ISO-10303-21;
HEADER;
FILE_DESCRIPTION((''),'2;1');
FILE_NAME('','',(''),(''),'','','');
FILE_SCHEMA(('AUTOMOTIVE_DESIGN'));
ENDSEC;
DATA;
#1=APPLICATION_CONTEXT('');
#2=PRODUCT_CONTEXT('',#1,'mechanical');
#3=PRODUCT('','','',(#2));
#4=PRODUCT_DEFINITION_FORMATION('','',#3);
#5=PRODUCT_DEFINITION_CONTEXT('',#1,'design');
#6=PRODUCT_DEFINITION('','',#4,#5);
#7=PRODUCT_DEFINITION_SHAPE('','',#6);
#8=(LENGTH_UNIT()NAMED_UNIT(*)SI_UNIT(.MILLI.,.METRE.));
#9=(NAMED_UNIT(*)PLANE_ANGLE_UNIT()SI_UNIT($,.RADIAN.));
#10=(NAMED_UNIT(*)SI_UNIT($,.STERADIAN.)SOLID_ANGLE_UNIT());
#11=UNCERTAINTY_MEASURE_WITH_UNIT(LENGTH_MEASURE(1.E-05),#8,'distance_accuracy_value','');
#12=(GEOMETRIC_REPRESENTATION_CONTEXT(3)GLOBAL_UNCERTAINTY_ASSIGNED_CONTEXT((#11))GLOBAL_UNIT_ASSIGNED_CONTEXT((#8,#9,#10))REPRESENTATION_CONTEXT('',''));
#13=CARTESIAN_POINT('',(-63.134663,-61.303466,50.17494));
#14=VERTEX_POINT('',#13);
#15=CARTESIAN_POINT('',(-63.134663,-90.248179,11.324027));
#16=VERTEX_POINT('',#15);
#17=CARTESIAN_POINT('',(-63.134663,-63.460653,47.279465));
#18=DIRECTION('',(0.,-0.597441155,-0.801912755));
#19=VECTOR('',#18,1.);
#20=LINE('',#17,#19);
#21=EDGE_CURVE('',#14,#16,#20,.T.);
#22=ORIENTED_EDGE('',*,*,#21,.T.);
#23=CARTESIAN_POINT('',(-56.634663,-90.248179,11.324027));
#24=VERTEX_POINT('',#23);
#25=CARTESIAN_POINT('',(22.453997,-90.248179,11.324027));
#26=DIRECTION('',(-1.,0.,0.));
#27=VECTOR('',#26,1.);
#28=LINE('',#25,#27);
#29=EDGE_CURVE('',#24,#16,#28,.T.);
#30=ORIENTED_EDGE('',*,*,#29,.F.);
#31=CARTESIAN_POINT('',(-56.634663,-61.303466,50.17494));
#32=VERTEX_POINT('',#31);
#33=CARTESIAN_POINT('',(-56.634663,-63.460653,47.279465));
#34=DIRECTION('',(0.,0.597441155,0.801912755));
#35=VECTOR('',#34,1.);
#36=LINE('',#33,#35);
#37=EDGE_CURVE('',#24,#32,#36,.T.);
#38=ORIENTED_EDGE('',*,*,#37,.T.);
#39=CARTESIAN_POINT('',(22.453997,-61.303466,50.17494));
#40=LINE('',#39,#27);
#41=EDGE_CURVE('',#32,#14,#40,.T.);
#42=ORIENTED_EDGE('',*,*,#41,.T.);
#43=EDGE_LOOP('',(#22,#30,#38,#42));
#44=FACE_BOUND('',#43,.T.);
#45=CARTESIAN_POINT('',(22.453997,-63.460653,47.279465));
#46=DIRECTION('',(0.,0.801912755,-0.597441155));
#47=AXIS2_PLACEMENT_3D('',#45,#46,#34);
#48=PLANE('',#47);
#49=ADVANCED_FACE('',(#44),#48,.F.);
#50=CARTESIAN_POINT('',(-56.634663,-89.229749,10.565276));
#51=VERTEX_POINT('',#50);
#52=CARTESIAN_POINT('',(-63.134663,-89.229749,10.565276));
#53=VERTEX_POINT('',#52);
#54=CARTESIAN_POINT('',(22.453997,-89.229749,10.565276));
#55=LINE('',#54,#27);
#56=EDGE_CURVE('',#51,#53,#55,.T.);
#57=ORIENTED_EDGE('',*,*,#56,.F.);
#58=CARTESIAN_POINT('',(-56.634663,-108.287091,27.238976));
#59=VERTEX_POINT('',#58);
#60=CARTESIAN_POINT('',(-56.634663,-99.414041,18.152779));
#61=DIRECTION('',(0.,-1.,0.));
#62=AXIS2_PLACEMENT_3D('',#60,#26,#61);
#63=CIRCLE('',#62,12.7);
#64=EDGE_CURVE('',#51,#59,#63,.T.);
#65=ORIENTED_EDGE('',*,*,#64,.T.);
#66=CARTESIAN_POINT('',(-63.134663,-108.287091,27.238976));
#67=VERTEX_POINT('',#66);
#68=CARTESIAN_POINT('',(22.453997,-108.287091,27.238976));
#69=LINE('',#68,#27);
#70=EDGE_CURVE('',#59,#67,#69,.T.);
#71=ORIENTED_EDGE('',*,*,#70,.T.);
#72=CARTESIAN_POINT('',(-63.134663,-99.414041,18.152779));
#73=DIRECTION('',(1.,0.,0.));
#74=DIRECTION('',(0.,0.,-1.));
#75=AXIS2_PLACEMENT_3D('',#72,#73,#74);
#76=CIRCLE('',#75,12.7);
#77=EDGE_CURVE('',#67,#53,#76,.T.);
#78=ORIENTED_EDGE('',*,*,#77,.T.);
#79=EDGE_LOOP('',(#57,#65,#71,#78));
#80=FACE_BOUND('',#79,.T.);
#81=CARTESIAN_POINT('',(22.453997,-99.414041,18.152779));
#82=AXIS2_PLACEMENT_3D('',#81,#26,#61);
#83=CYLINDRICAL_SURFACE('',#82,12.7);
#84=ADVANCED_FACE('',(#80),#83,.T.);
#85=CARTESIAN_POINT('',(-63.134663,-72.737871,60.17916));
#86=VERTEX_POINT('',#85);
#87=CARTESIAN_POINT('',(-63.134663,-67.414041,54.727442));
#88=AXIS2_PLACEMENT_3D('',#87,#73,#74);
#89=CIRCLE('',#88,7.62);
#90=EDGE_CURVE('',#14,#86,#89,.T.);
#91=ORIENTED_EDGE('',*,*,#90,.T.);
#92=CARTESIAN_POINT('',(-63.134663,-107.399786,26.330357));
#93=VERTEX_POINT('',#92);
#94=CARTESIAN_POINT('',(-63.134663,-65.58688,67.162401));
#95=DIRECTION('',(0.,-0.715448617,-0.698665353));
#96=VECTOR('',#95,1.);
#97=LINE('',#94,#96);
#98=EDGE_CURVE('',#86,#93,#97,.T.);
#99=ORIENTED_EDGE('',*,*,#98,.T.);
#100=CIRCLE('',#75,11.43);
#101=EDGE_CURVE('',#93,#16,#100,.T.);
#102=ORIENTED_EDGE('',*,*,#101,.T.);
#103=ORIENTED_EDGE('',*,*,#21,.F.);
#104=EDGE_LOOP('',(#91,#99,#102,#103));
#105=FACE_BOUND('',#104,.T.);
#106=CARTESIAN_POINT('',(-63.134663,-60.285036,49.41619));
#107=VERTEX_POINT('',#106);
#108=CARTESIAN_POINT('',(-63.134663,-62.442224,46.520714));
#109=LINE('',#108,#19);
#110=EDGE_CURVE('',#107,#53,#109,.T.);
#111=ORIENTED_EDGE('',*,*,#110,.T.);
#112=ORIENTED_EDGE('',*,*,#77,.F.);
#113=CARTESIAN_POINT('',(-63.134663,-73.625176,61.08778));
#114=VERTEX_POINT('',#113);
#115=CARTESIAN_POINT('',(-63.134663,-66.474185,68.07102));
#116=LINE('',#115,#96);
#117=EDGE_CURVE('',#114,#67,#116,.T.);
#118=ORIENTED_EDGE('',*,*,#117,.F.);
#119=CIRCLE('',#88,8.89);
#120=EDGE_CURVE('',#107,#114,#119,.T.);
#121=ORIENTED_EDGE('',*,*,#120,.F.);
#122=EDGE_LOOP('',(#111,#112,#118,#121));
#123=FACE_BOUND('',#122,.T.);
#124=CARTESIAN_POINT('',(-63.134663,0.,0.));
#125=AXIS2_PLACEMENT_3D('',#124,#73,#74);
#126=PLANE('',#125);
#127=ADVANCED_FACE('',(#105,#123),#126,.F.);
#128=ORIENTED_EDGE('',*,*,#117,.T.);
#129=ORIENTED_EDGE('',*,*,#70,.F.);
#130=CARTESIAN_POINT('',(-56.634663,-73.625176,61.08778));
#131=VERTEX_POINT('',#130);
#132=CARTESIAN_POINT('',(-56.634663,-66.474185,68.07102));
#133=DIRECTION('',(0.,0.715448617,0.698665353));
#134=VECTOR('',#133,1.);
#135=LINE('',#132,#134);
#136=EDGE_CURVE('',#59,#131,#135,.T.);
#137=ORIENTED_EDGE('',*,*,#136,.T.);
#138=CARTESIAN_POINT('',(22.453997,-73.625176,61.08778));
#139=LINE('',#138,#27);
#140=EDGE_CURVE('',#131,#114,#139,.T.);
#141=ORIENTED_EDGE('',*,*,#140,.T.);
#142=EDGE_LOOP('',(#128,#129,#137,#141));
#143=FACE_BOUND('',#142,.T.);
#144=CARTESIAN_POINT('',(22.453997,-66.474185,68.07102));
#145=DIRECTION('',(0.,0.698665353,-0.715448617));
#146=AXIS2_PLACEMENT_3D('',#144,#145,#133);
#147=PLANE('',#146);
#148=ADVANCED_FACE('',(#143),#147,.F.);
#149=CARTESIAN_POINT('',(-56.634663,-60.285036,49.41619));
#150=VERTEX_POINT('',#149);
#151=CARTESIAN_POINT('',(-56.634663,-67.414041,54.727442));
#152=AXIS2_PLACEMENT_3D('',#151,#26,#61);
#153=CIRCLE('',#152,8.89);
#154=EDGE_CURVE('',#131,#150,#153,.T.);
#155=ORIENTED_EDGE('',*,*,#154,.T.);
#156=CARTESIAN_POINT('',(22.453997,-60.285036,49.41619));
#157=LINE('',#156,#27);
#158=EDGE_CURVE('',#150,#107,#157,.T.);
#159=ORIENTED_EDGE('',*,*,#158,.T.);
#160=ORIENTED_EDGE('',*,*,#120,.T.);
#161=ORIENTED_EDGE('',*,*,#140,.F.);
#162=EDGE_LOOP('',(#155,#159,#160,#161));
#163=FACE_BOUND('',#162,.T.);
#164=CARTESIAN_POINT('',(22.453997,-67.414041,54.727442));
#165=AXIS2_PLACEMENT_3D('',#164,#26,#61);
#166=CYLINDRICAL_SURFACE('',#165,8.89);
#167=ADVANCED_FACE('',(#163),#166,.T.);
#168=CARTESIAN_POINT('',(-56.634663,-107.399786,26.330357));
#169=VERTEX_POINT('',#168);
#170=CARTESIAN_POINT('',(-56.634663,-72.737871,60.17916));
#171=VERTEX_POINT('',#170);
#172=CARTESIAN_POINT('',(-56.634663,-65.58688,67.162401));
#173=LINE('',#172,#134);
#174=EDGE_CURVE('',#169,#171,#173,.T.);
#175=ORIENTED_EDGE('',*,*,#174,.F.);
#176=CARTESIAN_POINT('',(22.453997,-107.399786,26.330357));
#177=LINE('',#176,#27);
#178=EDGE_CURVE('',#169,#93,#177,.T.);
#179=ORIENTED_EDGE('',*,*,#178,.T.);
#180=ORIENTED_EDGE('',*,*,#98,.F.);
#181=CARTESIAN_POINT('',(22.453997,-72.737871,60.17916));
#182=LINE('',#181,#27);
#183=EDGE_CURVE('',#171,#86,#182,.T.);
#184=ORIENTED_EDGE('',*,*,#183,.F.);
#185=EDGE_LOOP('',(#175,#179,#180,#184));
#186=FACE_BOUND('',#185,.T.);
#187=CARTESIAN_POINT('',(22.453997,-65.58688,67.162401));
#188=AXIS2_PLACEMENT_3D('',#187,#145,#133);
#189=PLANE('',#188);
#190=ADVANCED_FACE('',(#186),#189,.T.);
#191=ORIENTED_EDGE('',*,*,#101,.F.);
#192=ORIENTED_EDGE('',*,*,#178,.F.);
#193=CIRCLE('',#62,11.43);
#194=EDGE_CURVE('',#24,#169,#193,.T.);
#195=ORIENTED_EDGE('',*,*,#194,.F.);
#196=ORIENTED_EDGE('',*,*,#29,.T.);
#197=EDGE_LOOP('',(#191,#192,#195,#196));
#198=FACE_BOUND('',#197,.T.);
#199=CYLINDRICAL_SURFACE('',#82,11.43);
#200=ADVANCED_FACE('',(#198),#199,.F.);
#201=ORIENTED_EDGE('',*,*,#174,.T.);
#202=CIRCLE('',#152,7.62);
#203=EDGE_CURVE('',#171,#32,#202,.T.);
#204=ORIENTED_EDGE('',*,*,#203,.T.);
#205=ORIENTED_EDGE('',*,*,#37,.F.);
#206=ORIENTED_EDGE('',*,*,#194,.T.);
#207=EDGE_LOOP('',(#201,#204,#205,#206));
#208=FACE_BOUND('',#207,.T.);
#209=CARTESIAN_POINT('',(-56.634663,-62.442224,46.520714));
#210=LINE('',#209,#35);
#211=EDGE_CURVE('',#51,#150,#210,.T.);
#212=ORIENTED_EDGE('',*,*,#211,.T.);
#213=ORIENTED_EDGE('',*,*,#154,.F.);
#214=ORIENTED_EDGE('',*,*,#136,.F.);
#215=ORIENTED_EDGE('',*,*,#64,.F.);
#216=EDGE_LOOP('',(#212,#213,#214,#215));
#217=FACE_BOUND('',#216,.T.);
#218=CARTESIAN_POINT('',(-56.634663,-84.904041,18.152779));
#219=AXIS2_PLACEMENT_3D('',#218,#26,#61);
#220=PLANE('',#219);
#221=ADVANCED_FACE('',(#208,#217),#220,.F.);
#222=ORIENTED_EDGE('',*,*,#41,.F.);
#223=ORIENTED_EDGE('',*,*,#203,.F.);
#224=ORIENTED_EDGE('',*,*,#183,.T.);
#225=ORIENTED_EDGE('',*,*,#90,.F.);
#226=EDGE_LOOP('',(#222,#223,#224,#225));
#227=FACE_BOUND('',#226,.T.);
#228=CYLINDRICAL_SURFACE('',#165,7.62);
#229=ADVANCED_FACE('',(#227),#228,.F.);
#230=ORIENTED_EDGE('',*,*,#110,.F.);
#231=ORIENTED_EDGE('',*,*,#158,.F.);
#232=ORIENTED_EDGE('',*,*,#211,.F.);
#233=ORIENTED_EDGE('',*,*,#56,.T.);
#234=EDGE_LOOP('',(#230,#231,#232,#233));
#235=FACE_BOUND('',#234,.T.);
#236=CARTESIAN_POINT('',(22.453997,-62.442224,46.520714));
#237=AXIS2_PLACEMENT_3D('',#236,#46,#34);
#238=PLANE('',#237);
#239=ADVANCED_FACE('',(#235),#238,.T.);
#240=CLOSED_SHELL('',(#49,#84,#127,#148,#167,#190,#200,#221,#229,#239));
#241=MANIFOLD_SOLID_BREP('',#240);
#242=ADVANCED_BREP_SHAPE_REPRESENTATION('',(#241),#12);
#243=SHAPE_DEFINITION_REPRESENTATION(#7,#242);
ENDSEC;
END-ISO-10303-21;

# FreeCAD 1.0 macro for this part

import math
import FreeCAD as App
import Part
import Sketcher

V = App.Vector
Q = App.Units.Quantity

doc = App.newDocument("Part")
body = doc.addObject("PartDesign::Body", "Body")

# Sketch on YZ plane
sketch1 = doc.addObject("Sketcher::SketchObject", "Sketch")
body.addObject(sketch1)
sketch1.AttachmentSupport = (doc.YZ_Plane, [""])
sketch1.MapMode = "FlatFace"
sketch1.AttachmentOffset = App.Placement(V(0, 0, -63.134663), App.Rotation())
sketch1.addGeometry([
    Part.LineSegment(V(-89.229749, 10.565276, 0), V(-60.285036, 49.41619, 0)),  # 0
    Part.ArcOfCircle(Part.Circle(V(-67.414041, 54.727442, 0), V(0, 0, 1), 8.89), math.radians(-36.686853), math.radians(134.320023)),  # 1
    Part.LineSegment(V(-73.625176, 61.08778, 0), V(-108.287091, 27.238976, 0)),  # 2
    Part.ArcOfCircle(Part.Circle(V(-99.414041, 18.152779, 0), V(0, 0, 1), 12.7), math.radians(134.320023), math.radians(323.313147)),  # 3
    Part.ArcOfCircle(Part.Circle(V(-99.414041, 18.152779, 0), V(0, 0, 1), 11.43), math.radians(134.320023), math.radians(323.313147)),  # 4
    Part.LineSegment(V(-107.399786, 26.330357, 0), V(-72.737871, 60.17916, 0)),  # 5
    Part.ArcOfCircle(Part.Circle(V(-67.414041, 54.727442, 0), V(0, 0, 1), 7.62), math.radians(-36.686853), math.radians(134.320023)),  # 6
    Part.LineSegment(V(-61.303466, 50.17494, 0), V(-64.039179, 46.502941, 0)),  # 7
    Part.LineSegment(V(-64.039179, 46.502941, 0), V(-90.248179, 11.324027, 0)),  # 8
], False)
sketch1.addConstraint([
    Sketcher.Constraint("Tangent", 0, 2, 1, 1),
    Sketcher.Constraint("Tangent", 1, 2, 2, 1),
    Sketcher.Constraint("Tangent", 2, 2, 3, 1),
    Sketcher.Constraint("Tangent", 3, 2, 0, 1),
    Sketcher.Constraint("Tangent", 4, 1, 5, 1),
    Sketcher.Constraint("Tangent", 5, 2, 6, 2),
    Sketcher.Constraint("Tangent", 6, 1, 7, 1),
    Sketcher.Constraint("Coincident", 7, 2, 8, 1),
    Sketcher.Constraint("Tangent", 8, 2, 4, 2),
    Sketcher.Constraint("Coincident", 4, 3, 3, 3),
    Sketcher.Constraint("Coincident", 6, 3, 1, 3),
    Sketcher.Constraint("Parallel", 2, 5),
    Sketcher.Constraint("Parallel", 0, 7),
    Sketcher.Constraint("Radius", 3, Q("0.5 in")),
    Sketcher.Constraint("Radius", 6, Q("0.3 in")),
    Sketcher.Constraint("Radius", 1, Q("0.35 in")),
    Sketcher.Constraint("DistanceX", 3, 3, 1, 3, 32.000001),
    Sketcher.Constraint("DistanceY", 3, 3, 1, 2, 42.935001),
    Sketcher.Constraint("DistanceY", 7, 2, 6, 1, 3.671999),
    Sketcher.Constraint("DistanceX", 1, 3, -1, 1, 67.414041),
    Sketcher.Constraint("DistanceY", -1, 1, 1, 3, 54.727442),
])
pad1 = doc.addObject("PartDesign::Pad", "Pad")
body.addObject(pad1)
pad1.Profile = sketch1
pad1.Length = 6.5

doc.recompute()
